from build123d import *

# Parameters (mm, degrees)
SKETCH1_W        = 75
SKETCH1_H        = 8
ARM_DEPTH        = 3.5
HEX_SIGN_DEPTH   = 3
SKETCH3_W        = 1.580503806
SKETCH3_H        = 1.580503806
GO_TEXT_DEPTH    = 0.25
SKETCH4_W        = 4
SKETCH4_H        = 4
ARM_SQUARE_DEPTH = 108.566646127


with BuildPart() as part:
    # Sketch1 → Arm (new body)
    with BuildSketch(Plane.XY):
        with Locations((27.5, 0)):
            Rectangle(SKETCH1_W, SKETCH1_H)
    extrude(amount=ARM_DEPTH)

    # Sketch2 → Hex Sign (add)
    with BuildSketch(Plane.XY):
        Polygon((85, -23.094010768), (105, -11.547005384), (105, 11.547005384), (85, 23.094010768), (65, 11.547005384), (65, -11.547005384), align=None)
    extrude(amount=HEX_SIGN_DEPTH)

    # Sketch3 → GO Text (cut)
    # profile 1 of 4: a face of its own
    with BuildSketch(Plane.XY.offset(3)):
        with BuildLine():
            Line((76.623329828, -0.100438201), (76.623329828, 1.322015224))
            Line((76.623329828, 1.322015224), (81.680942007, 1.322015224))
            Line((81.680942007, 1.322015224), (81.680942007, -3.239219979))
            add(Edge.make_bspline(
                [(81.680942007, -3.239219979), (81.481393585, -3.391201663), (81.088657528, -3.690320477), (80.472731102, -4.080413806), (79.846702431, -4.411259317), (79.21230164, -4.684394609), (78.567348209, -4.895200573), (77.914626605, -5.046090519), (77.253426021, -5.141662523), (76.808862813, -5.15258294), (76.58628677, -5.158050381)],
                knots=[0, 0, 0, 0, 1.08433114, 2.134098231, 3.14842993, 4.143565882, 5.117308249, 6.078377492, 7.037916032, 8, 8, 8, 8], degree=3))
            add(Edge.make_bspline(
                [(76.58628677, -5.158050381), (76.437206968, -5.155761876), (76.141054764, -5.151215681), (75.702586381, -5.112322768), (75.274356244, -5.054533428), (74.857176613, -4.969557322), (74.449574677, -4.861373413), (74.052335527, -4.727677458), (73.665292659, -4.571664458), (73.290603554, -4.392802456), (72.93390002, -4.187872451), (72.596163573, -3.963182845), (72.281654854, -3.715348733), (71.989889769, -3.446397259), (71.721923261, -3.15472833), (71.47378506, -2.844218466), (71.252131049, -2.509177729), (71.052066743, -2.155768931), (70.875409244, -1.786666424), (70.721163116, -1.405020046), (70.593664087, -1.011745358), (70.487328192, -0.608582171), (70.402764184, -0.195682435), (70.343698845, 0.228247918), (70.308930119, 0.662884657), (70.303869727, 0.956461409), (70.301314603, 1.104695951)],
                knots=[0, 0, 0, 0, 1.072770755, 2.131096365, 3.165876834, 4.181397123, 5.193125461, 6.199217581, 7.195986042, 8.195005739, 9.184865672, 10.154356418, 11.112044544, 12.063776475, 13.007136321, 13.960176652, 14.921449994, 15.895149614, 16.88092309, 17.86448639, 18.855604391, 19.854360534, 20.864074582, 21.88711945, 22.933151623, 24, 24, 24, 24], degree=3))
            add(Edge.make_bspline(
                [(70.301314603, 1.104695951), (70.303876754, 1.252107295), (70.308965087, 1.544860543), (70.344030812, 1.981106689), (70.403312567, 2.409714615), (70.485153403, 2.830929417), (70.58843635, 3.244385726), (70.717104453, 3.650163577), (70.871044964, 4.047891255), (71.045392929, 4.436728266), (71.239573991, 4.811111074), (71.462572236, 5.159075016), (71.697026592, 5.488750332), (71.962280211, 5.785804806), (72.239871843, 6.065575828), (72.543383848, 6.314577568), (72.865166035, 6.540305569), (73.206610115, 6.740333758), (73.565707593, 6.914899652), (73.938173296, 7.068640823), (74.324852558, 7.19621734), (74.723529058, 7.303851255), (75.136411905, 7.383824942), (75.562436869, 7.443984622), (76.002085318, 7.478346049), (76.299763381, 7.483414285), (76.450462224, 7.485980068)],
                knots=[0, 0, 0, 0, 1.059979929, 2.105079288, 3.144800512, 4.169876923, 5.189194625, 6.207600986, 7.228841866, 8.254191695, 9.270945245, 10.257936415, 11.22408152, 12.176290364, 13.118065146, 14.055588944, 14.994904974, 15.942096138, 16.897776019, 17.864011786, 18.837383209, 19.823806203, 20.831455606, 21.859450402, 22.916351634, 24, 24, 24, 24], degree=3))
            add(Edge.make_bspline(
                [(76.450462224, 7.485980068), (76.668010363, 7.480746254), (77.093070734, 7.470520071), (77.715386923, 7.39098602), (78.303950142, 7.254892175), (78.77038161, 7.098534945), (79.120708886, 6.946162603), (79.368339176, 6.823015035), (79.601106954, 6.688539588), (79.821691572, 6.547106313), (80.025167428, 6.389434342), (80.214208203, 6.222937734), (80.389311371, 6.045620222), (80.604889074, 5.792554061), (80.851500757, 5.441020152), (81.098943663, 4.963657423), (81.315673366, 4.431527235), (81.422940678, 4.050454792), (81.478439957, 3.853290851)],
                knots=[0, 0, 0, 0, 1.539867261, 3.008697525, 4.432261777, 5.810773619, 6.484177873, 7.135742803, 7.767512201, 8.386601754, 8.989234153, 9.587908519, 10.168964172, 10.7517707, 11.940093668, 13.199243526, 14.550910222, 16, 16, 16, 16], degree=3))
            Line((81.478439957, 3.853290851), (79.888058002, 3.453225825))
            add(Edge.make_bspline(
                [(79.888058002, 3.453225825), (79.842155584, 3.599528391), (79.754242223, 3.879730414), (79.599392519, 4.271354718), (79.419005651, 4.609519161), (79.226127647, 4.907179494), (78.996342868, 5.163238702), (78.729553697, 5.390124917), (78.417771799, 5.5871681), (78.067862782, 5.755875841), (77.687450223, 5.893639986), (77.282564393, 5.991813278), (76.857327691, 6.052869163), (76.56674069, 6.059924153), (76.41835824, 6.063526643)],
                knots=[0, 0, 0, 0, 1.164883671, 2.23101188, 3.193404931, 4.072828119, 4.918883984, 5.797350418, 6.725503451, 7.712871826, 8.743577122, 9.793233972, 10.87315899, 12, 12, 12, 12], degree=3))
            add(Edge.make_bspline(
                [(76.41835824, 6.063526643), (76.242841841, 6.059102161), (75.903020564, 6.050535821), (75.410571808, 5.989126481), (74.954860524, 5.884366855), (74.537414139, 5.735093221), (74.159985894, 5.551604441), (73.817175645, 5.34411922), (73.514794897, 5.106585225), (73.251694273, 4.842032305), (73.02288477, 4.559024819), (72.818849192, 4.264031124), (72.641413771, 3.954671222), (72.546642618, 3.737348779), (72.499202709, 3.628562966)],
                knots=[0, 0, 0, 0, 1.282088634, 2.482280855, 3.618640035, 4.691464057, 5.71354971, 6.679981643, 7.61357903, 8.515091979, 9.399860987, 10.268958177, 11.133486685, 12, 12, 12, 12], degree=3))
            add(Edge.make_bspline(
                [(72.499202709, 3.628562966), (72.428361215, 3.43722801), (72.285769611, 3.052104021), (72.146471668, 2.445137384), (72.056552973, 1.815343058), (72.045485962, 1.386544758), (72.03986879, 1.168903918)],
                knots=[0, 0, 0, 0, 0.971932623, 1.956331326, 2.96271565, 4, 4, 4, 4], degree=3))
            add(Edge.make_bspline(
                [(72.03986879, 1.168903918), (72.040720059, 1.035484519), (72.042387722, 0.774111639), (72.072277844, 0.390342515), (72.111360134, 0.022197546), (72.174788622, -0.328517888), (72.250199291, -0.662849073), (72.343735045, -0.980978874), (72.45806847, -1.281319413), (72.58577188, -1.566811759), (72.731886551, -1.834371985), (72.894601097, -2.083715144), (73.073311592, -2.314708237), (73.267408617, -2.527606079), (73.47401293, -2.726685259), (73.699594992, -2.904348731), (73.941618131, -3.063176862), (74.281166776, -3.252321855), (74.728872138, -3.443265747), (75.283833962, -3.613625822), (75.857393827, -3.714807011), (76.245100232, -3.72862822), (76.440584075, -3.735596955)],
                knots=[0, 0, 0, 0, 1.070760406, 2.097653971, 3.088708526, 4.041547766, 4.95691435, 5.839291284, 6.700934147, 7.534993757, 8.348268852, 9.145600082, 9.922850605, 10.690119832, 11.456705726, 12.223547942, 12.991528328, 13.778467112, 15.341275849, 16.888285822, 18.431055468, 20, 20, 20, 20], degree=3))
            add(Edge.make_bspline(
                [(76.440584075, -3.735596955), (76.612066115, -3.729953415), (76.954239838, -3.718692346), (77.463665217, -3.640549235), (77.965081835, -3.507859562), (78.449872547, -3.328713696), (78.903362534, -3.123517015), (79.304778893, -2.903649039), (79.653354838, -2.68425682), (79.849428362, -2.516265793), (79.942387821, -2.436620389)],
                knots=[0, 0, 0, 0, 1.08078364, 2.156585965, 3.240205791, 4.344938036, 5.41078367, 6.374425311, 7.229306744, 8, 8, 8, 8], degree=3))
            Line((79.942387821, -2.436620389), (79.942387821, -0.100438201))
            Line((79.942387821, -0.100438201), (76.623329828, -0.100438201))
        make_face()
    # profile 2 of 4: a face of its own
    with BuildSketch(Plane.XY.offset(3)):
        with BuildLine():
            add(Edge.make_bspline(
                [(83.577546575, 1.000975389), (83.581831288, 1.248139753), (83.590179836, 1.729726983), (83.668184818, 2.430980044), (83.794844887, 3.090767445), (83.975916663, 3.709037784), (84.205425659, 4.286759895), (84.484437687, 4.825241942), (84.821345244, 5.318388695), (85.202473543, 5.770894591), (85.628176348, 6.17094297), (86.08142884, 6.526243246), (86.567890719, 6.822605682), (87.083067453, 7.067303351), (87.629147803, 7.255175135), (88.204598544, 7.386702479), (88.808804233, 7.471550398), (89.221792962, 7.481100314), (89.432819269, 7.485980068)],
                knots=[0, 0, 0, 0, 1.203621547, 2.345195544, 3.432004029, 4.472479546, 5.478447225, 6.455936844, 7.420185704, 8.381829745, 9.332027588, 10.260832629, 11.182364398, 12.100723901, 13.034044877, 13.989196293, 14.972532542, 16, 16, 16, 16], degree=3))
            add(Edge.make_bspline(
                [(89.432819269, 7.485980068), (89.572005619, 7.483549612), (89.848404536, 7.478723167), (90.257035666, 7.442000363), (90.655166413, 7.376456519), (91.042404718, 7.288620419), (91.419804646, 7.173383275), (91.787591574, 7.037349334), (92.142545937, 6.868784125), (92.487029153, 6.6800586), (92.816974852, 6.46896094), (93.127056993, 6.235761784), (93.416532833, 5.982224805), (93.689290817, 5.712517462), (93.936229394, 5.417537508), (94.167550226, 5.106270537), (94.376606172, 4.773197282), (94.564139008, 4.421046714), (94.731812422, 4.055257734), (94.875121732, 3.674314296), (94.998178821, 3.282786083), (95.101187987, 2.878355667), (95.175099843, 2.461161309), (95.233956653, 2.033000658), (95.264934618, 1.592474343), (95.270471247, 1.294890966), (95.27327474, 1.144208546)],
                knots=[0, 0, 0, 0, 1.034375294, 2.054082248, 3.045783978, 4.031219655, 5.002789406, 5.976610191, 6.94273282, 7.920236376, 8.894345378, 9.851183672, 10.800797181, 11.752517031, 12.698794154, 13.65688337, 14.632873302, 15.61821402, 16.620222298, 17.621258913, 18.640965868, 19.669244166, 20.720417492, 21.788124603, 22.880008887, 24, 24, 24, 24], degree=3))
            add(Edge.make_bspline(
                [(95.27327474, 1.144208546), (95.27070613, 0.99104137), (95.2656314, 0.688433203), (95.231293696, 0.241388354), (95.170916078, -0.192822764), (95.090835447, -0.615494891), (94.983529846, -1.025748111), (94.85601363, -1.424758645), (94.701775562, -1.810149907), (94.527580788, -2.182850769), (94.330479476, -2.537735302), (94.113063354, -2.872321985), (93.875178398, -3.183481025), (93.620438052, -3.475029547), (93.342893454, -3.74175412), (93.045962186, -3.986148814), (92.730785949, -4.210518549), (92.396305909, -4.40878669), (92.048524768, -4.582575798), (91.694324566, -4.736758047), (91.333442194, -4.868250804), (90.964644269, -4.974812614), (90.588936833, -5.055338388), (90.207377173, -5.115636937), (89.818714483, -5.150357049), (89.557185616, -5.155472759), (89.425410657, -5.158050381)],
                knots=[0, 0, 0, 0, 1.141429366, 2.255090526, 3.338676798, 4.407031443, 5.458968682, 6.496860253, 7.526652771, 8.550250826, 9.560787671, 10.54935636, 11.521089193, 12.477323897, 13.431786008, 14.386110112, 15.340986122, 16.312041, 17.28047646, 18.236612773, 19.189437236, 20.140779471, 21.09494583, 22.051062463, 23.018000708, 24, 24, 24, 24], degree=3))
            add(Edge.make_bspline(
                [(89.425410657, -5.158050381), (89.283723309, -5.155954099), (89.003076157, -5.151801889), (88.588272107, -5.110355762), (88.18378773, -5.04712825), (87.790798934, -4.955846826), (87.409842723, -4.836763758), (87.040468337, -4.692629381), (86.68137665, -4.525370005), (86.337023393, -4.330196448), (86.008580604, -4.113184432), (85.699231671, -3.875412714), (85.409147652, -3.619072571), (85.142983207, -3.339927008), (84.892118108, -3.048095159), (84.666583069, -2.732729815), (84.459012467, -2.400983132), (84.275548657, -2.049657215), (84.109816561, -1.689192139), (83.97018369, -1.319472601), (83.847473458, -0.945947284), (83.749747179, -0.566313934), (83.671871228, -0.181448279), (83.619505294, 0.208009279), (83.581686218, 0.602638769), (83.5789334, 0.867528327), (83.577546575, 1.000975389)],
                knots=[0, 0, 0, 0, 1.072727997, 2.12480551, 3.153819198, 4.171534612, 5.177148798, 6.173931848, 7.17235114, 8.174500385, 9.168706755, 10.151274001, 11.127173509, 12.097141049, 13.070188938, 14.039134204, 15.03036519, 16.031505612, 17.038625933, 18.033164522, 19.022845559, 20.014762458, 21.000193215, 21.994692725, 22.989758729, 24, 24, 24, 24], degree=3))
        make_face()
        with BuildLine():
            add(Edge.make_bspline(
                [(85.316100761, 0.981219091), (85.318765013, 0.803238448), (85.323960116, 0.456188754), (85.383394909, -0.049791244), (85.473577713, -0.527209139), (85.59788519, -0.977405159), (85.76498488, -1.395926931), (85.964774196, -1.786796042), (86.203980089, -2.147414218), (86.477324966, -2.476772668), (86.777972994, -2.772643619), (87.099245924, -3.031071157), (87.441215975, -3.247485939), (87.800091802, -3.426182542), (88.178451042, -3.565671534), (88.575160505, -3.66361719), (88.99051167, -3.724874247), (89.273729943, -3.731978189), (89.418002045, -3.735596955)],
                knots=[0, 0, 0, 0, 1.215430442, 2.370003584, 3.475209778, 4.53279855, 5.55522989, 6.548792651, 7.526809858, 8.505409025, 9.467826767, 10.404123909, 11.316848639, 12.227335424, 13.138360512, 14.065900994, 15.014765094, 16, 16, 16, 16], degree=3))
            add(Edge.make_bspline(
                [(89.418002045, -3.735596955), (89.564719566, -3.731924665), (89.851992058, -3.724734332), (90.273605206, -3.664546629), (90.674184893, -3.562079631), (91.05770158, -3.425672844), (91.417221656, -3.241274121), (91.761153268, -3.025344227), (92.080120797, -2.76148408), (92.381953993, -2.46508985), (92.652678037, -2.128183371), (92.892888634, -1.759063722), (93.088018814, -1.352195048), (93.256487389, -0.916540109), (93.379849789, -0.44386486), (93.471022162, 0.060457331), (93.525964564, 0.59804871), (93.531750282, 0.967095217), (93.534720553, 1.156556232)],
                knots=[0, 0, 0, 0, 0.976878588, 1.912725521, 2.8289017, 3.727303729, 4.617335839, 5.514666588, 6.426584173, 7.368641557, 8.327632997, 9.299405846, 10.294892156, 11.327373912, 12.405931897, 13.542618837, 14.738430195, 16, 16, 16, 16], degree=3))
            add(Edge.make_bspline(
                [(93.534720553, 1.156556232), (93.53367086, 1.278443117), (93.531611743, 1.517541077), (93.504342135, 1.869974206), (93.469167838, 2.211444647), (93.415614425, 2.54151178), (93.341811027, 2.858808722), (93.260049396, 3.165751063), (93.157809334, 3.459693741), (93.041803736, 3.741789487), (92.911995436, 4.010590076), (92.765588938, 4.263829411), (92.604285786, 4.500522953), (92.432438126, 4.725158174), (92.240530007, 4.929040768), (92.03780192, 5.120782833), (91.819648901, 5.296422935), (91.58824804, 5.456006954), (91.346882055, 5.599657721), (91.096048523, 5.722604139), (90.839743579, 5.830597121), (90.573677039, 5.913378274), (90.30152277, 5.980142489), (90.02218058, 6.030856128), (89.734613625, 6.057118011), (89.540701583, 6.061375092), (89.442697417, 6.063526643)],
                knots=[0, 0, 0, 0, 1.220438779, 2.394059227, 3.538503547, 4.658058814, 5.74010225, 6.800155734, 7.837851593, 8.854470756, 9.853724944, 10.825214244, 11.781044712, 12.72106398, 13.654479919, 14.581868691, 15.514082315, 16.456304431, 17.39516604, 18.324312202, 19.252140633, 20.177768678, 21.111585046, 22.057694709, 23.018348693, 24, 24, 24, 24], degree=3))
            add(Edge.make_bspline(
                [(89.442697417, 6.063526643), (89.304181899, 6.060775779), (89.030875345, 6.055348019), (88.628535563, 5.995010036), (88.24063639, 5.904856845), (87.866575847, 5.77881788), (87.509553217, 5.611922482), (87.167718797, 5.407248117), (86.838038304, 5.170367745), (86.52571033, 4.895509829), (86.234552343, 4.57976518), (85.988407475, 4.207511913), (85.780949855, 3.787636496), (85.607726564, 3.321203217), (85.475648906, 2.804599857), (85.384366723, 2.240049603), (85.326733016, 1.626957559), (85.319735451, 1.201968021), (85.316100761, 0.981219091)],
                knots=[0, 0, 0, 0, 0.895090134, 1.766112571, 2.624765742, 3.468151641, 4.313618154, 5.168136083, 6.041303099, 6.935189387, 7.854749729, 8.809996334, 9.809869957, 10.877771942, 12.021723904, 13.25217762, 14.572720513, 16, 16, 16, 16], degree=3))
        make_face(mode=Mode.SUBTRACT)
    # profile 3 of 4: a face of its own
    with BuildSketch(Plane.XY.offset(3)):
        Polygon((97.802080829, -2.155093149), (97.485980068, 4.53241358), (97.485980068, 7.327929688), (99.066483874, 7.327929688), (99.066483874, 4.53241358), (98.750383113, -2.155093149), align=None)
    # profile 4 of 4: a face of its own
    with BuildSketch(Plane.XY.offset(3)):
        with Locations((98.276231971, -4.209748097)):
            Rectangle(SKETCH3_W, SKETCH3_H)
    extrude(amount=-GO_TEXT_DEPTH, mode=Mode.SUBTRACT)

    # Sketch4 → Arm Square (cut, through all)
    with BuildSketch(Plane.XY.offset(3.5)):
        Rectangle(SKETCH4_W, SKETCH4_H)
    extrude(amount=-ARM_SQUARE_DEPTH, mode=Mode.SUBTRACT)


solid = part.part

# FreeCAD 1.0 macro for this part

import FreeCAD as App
import Part
import Sketcher
Q = App.Units.Quantity

doc = App.newDocument("Part")
body = doc.addObject("PartDesign::Body", "Body")

# Sketch on XY plane
sketch1 = body.newObject("Sketcher::SketchObject", "Sketch")
sketch1.AttachmentSupport = (doc.getObject("XY_Plane"), [""])
sketch1.MapMode = "FlatFace"
sketch1.addGeometry([
    Part.LineSegment(App.Vector(-10, 4, 0), App.Vector(-10, -4, 0)),
    Part.LineSegment(App.Vector(-10, -4, 0), App.Vector(65, -4, 0)),
    Part.LineSegment(App.Vector(65, -4, 0), App.Vector(65, 4, 0)),
    Part.LineSegment(App.Vector(65, 4, 0), App.Vector(-10, 4, 0)),
], False)
sketch1.addConstraint([
    Sketcher.Constraint("Coincident", 0, 2, 1, 1),
    Sketcher.Constraint("Coincident", 1, 2, 2, 1),
    Sketcher.Constraint("Coincident", 2, 2, 3, 1),
    Sketcher.Constraint("Coincident", 3, 2, 0, 1),
    Sketcher.Constraint("Vertical", 0),
    Sketcher.Constraint("Horizontal", 1),
    Sketcher.Constraint("Vertical", 2),
    Sketcher.Constraint("Horizontal", 3),
    Sketcher.Constraint("DistanceX", 1, 1, 1, 2, 75.0),
    Sketcher.Constraint("DistanceY", 0, 2, 0, 1, 8.0),
    Sketcher.Constraint("DistanceX", 0, 2, -1, 1, 10.0),
    Sketcher.Constraint("DistanceY", 0, 2, -1, 1, 4.0),
])
pad1 = body.newObject("PartDesign::Pad", "Pad")
pad1.Profile = sketch1
pad1.Length = 3.5

# Sketch on XY plane
sketch2 = body.newObject("Sketcher::SketchObject", "Sketch001")
sketch2.AttachmentSupport = (doc.getObject("XY_Plane"), [""])
sketch2.MapMode = "FlatFace"
sketch2.addGeometry([
    Part.LineSegment(App.Vector(85, -23.094011, 0), App.Vector(105, -11.547005, 0)),  # 0
    Part.LineSegment(App.Vector(105, -11.547005, 0), App.Vector(105, 11.547005, 0)),  # 1
    Part.LineSegment(App.Vector(105, 11.547005, 0), App.Vector(85, 23.094011, 0)),  # 2
    Part.LineSegment(App.Vector(85, 23.094011, 0), App.Vector(65, 11.547005, 0)),  # 3
    Part.LineSegment(App.Vector(65, 11.547005, 0), App.Vector(65, -11.547005, 0)),  # 4
    Part.LineSegment(App.Vector(65, -11.547005, 0), App.Vector(85, -23.094011, 0)),  # 5
], False)
sketch2.addConstraint([
    Sketcher.Constraint("Coincident", 0, 2, 1, 1),
    Sketcher.Constraint("Coincident", 1, 2, 2, 1),
    Sketcher.Constraint("Coincident", 2, 2, 3, 1),
    Sketcher.Constraint("Coincident", 3, 2, 4, 1),
    Sketcher.Constraint("Coincident", 4, 2, 5, 1),
    Sketcher.Constraint("Coincident", 5, 2, 0, 1),
    Sketcher.Constraint("Vertical", 1),
    Sketcher.Constraint("Vertical", 4),
    Sketcher.Constraint("Symmetric", 2, 2, 5, 2, -1),
    Sketcher.Constraint("Parallel", 0, 3),
    Sketcher.Constraint("Parallel", 2, 5),
    Sketcher.Constraint("Horizontal", 1, 2, 3, 2),
    Sketcher.Constraint("Horizontal", 0, 2, 4, 2),
    Sketcher.Constraint("Angle", 0, Q("30 deg")),
    Sketcher.Constraint("DistanceX", -1, 1, 0, 2, 105.0),
    Sketcher.Constraint("DistanceX", -1, 1, 2, 2, 85.0),
    Sketcher.Constraint("DistanceY", 1, 1, 1, 2, 23.094011),
])
pad2 = body.newObject("PartDesign::Pad", "Pad001")
pad2.Profile = sketch2
pad2.Length = 3

# Sketch on XY plane
sketch3 = body.newObject("Sketcher::SketchObject", "Sketch002")
sketch3.AttachmentSupport = (doc.getObject("XY_Plane"), [""])
sketch3.MapMode = "FlatFace"
sketch3.AttachmentOffset = App.Placement(App.Vector(0, 0, 3), App.Rotation())
sketch3.addGeometry([
    Part.LineSegment(App.Vector(76.62333, 1.322015, 0), App.Vector(76.62333, -0.100438, 0)),  # 0
    Part.LineSegment(App.Vector(76.62333, -0.100438, 0), App.Vector(79.942388, -0.100438, 0)),  # 1
    Part.LineSegment(App.Vector(79.942388, -0.100438, 0), App.Vector(79.942388, -2.43662, 0)),  # 2
    Part.BSplineCurve([App.Vector(76.440584, -3.735597, 0), App.Vector(76.612066, -3.729953, 0), App.Vector(76.95424, -3.718692, 0), App.Vector(77.463665, -3.640549, 0), App.Vector(77.965082, -3.50786, 0), App.Vector(78.449873, -3.328714, 0), App.Vector(78.903363, -3.123517, 0), App.Vector(79.304779, -2.903649, 0), App.Vector(79.653355, -2.684257, 0), App.Vector(79.849428, -2.516266, 0), App.Vector(79.942388, -2.43662, 0)], [4, 1, 1, 1, 1, 1, 1, 1, 4], [0, 1.08078364, 2.156585965, 3.240205791, 4.344938036, 5.41078367, 6.374425311, 7.229306744, 8], False, 3, [1, 1, 1, 1, 1, 1, 1, 1, 1, 1, 1], False),  # 3
    Part.BSplineCurve([App.Vector(72.039869, 1.168904, 0), App.Vector(72.04072, 1.035485, 0), App.Vector(72.042388, 0.774112, 0), App.Vector(72.072278, 0.390343, 0), App.Vector(72.11136, 0.022198, 0), App.Vector(72.174789, -0.328518, 0), App.Vector(72.250199, -0.662849, 0), App.Vector(72.343735, -0.980979, 0), App.Vector(72.458068, -1.281319, 0), App.Vector(72.585772, -1.566812, 0), App.Vector(72.731887, -1.834372, 0), App.Vector(72.894601, -2.083715, 0), App.Vector(73.073312, -2.314708, 0), App.Vector(73.267409, -2.527606, 0), App.Vector(73.474013, -2.726685, 0), App.Vector(73.699595, -2.904349, 0), App.Vector(73.941618, -3.063177, 0), App.Vector(74.281167, -3.252322, 0), App.Vector(74.728872, -3.443266, 0), App.Vector(75.283834, -3.613626, 0), App.Vector(75.857394, -3.714807, 0), App.Vector(76.2451, -3.728628, 0), App.Vector(76.440584, -3.735597, 0)], [4, 1, 1, 1, 1, 1, 1, 1, 1, 1, 1, 1, 1, 1, 1, 1, 1, 1, 1, 1, 4], [0, 1.070760406, 2.097653971, 3.088708526, 4.041547766, 4.95691435, 5.839291284, 6.700934147, 7.534993757, 8.348268852, 9.145600082, 9.922850605, 10.690119832, 11.456705726, 12.223547942, 12.991528328, 13.778467112, 15.341275849, 16.888285822, 18.431055468, 20], False, 3, [1, 1, 1, 1, 1, 1, 1, 1, 1, 1, 1, 1, 1, 1, 1, 1, 1, 1, 1, 1, 1, 1, 1], False),  # 4
    Part.BSplineCurve([App.Vector(72.499203, 3.628563, 0), App.Vector(72.428361, 3.437228, 0), App.Vector(72.28577, 3.052104, 0), App.Vector(72.146472, 2.445137, 0), App.Vector(72.056553, 1.815343, 0), App.Vector(72.045486, 1.386545, 0), App.Vector(72.039869, 1.168904, 0)], [4, 1, 1, 1, 4], [0, 0.971932623, 1.956331326, 2.96271565, 4], False, 3, [1, 1, 1, 1, 1, 1, 1], False),  # 5
    Part.BSplineCurve([App.Vector(76.418358, 6.063527, 0), App.Vector(76.242842, 6.059102, 0), App.Vector(75.903021, 6.050536, 0), App.Vector(75.410572, 5.989126, 0), App.Vector(74.954861, 5.884367, 0), App.Vector(74.537414, 5.735093, 0), App.Vector(74.159986, 5.551604, 0), App.Vector(73.817176, 5.344119, 0), App.Vector(73.514795, 5.106585, 0), App.Vector(73.251694, 4.842032, 0), App.Vector(73.022885, 4.559025, 0), App.Vector(72.818849, 4.264031, 0), App.Vector(72.641414, 3.954671, 0), App.Vector(72.546643, 3.737349, 0), App.Vector(72.499203, 3.628563, 0)], [4, 1, 1, 1, 1, 1, 1, 1, 1, 1, 1, 1, 4], [0, 1.282088634, 2.482280855, 3.618640035, 4.691464057, 5.71354971, 6.679981643, 7.61357903, 8.515091979, 9.399860987, 10.268958177, 11.133486685, 12], False, 3, [1, 1, 1, 1, 1, 1, 1, 1, 1, 1, 1, 1, 1, 1, 1], False),  # 6
    Part.BSplineCurve([App.Vector(79.888058, 3.453226, 0), App.Vector(79.842156, 3.599528, 0), App.Vector(79.754242, 3.87973, 0), App.Vector(79.599393, 4.271355, 0), App.Vector(79.419006, 4.609519, 0), App.Vector(79.226128, 4.907179, 0), App.Vector(78.996343, 5.163239, 0), App.Vector(78.729554, 5.390125, 0), App.Vector(78.417772, 5.587168, 0), App.Vector(78.067863, 5.755876, 0), App.Vector(77.68745, 5.89364, 0), App.Vector(77.282564, 5.991813, 0), App.Vector(76.857328, 6.052869, 0), App.Vector(76.566741, 6.059924, 0), App.Vector(76.418358, 6.063527, 0)], [4, 1, 1, 1, 1, 1, 1, 1, 1, 1, 1, 1, 4], [0, 1.164883671, 2.23101188, 3.193404931, 4.072828119, 4.918883984, 5.797350418, 6.725503451, 7.712871826, 8.743577122, 9.793233972, 10.87315899, 12], False, 3, [1, 1, 1, 1, 1, 1, 1, 1, 1, 1, 1, 1, 1, 1, 1], False),  # 7
    Part.LineSegment(App.Vector(79.888058, 3.453226, 0), App.Vector(81.47844, 3.853291, 0)),  # 8
    Part.BSplineCurve([App.Vector(76.450462, 7.48598, 0), App.Vector(76.66801, 7.480746, 0), App.Vector(77.093071, 7.47052, 0), App.Vector(77.715387, 7.390986, 0), App.Vector(78.30395, 7.254892, 0), App.Vector(78.770382, 7.098535, 0), App.Vector(79.120709, 6.946163, 0), App.Vector(79.368339, 6.823015, 0), App.Vector(79.601107, 6.68854, 0), App.Vector(79.821692, 6.547106, 0), App.Vector(80.025167, 6.389434, 0), App.Vector(80.214208, 6.222938, 0), App.Vector(80.389311, 6.04562, 0), App.Vector(80.604889, 5.792554, 0), App.Vector(80.851501, 5.44102, 0), App.Vector(81.098944, 4.963657, 0), App.Vector(81.315673, 4.431527, 0), App.Vector(81.422941, 4.050455, 0), App.Vector(81.47844, 3.853291, 0)], [4, 1, 1, 1, 1, 1, 1, 1, 1, 1, 1, 1, 1, 1, 1, 1, 4], [0, 1.539867261, 3.008697525, 4.432261777, 5.810773619, 6.484177873, 7.135742803, 7.767512201, 8.386601754, 8.989234153, 9.587908519, 10.168964172, 10.7517707, 11.940093668, 13.199243526, 14.550910222, 16], False, 3, [1, 1, 1, 1, 1, 1, 1, 1, 1, 1, 1, 1, 1, 1, 1, 1, 1, 1, 1], False),  # 9
    Part.BSplineCurve([App.Vector(70.301315, 1.104696, 0), App.Vector(70.303877, 1.252107, 0), App.Vector(70.308965, 1.544861, 0), App.Vector(70.344031, 1.981107, 0), App.Vector(70.403313, 2.409715, 0), App.Vector(70.485153, 2.830929, 0), App.Vector(70.588436, 3.244386, 0), App.Vector(70.717104, 3.650164, 0), App.Vector(70.871045, 4.047891, 0), App.Vector(71.045393, 4.436728, 0), App.Vector(71.239574, 4.811111, 0), App.Vector(71.462572, 5.159075, 0), App.Vector(71.697027, 5.48875, 0), App.Vector(71.96228, 5.785805, 0), App.Vector(72.239872, 6.065576, 0), App.Vector(72.543384, 6.314578, 0), App.Vector(72.865166, 6.540306, 0), App.Vector(73.20661, 6.740334, 0), App.Vector(73.565708, 6.9149, 0), App.Vector(73.938173, 7.068641, 0), App.Vector(74.324853, 7.196217, 0), App.Vector(74.723529, 7.303851, 0), App.Vector(75.136412, 7.383825, 0), App.Vector(75.562437, 7.443985, 0), App.Vector(76.002085, 7.478346, 0), App.Vector(76.299763, 7.483414, 0), App.Vector(76.450462, 7.48598, 0)], [4, 1, 1, 1, 1, 1, 1, 1, 1, 1, 1, 1, 1, 1, 1, 1, 1, 1, 1, 1, 1, 1, 1, 1, 4], [0, 1.059979929, 2.105079288, 3.144800512, 4.169876923, 5.189194625, 6.207600986, 7.228841866, 8.254191695, 9.270945245, 10.257936415, 11.22408152, 12.176290364, 13.118065146, 14.055588944, 14.994904974, 15.942096138, 16.897776019, 17.864011786, 18.837383209, 19.823806203, 20.831455606, 21.859450402, 22.916351634, 24], False, 3, [1, 1, 1, 1, 1, 1, 1, 1, 1, 1, 1, 1, 1, 1, 1, 1, 1, 1, 1, 1, 1, 1, 1, 1, 1, 1, 1], False),  # 10
    Part.BSplineCurve([App.Vector(76.586287, -5.15805, 0), App.Vector(76.437207, -5.155762, 0), App.Vector(76.141055, -5.151216, 0), App.Vector(75.702586, -5.112323, 0), App.Vector(75.274356, -5.054533, 0), App.Vector(74.857177, -4.969557, 0), App.Vector(74.449575, -4.861373, 0), App.Vector(74.052336, -4.727677, 0), App.Vector(73.665293, -4.571664, 0), App.Vector(73.290604, -4.392802, 0), App.Vector(72.9339, -4.187872, 0), App.Vector(72.596164, -3.963183, 0), App.Vector(72.281655, -3.715349, 0), App.Vector(71.98989, -3.446397, 0), App.Vector(71.721923, -3.154728, 0), App.Vector(71.473785, -2.844218, 0), App.Vector(71.252131, -2.509178, 0), App.Vector(71.052067, -2.155769, 0), App.Vector(70.875409, -1.786666, 0), App.Vector(70.721163, -1.40502, 0), App.Vector(70.593664, -1.011745, 0), App.Vector(70.487328, -0.608582, 0), App.Vector(70.402764, -0.195682, 0), App.Vector(70.343699, 0.228248, 0), App.Vector(70.30893, 0.662885, 0), App.Vector(70.30387, 0.956461, 0), App.Vector(70.301315, 1.104696, 0)], [4, 1, 1, 1, 1, 1, 1, 1, 1, 1, 1, 1, 1, 1, 1, 1, 1, 1, 1, 1, 1, 1, 1, 1, 4], [0, 1.072770755, 2.131096365, 3.165876834, 4.181397123, 5.193125461, 6.199217581, 7.195986042, 8.195005739, 9.184865672, 10.154356418, 11.112044544, 12.063776475, 13.007136321, 13.960176652, 14.921449994, 15.895149614, 16.88092309, 17.86448639, 18.855604391, 19.854360534, 20.864074582, 21.88711945, 22.933151623, 24], False, 3, [1, 1, 1, 1, 1, 1, 1, 1, 1, 1, 1, 1, 1, 1, 1, 1, 1, 1, 1, 1, 1, 1, 1, 1, 1, 1, 1], False),  # 11
    Part.BSplineCurve([App.Vector(81.680942, -3.23922, 0), App.Vector(81.481394, -3.391202, 0), App.Vector(81.088658, -3.69032, 0), App.Vector(80.472731, -4.080414, 0), App.Vector(79.846702, -4.411259, 0), App.Vector(79.212302, -4.684395, 0), App.Vector(78.567348, -4.895201, 0), App.Vector(77.914627, -5.046091, 0), App.Vector(77.253426, -5.141663, 0), App.Vector(76.808863, -5.152583, 0), App.Vector(76.586287, -5.15805, 0)], [4, 1, 1, 1, 1, 1, 1, 1, 4], [0, 1.08433114, 2.134098231, 3.14842993, 4.143565882, 5.117308249, 6.078377492, 7.037916032, 8], False, 3, [1, 1, 1, 1, 1, 1, 1, 1, 1, 1, 1], False),  # 12
    Part.LineSegment(App.Vector(81.680942, -3.23922, 0), App.Vector(81.680942, 1.322015, 0)),  # 13
    Part.LineSegment(App.Vector(81.680942, 1.322015, 0), App.Vector(76.62333, 1.322015, 0)),  # 14
    Part.BSplineCurve([App.Vector(83.577547, 1.000975, 0), App.Vector(83.581831, 1.24814, 0), App.Vector(83.59018, 1.729727, 0), App.Vector(83.668185, 2.43098, 0), App.Vector(83.794845, 3.090767, 0), App.Vector(83.975917, 3.709038, 0), App.Vector(84.205426, 4.28676, 0), App.Vector(84.484438, 4.825242, 0), App.Vector(84.821345, 5.318389, 0), App.Vector(85.202474, 5.770895, 0), App.Vector(85.628176, 6.170943, 0), App.Vector(86.081429, 6.526243, 0), App.Vector(86.567891, 6.822606, 0), App.Vector(87.083067, 7.067303, 0), App.Vector(87.629148, 7.255175, 0), App.Vector(88.204599, 7.386702, 0), App.Vector(88.808804, 7.47155, 0), App.Vector(89.221793, 7.4811, 0), App.Vector(89.432819, 7.48598, 0)], [4, 1, 1, 1, 1, 1, 1, 1, 1, 1, 1, 1, 1, 1, 1, 1, 4], [0, 1.203621547, 2.345195544, 3.432004029, 4.472479546, 5.478447225, 6.455936844, 7.420185704, 8.381829745, 9.332027588, 10.260832629, 11.182364398, 12.100723901, 13.034044877, 13.989196293, 14.972532542, 16], False, 3, [1, 1, 1, 1, 1, 1, 1, 1, 1, 1, 1, 1, 1, 1, 1, 1, 1, 1, 1], False),  # 15
    Part.BSplineCurve([App.Vector(89.425411, -5.15805, 0), App.Vector(89.283723, -5.155954, 0), App.Vector(89.003076, -5.151802, 0), App.Vector(88.588272, -5.110356, 0), App.Vector(88.183788, -5.047128, 0), App.Vector(87.790799, -4.955847, 0), App.Vector(87.409843, -4.836764, 0), App.Vector(87.040468, -4.692629, 0), App.Vector(86.681377, -4.52537, 0), App.Vector(86.337023, -4.330196, 0), App.Vector(86.008581, -4.113184, 0), App.Vector(85.699232, -3.875413, 0), App.Vector(85.409148, -3.619073, 0), App.Vector(85.142983, -3.339927, 0), App.Vector(84.892118, -3.048095, 0), App.Vector(84.666583, -2.73273, 0), App.Vector(84.459012, -2.400983, 0), App.Vector(84.275549, -2.049657, 0), App.Vector(84.109817, -1.689192, 0), App.Vector(83.970184, -1.319473, 0), App.Vector(83.847473, -0.945947, 0), App.Vector(83.749747, -0.566314, 0), App.Vector(83.671871, -0.181448, 0), App.Vector(83.619505, 0.208009, 0), App.Vector(83.581686, 0.602639, 0), App.Vector(83.578933, 0.867528, 0), App.Vector(83.577547, 1.000975, 0)], [4, 1, 1, 1, 1, 1, 1, 1, 1, 1, 1, 1, 1, 1, 1, 1, 1, 1, 1, 1, 1, 1, 1, 1, 4], [0, 1.072727997, 2.12480551, 3.153819198, 4.171534612, 5.177148798, 6.173931848, 7.17235114, 8.174500385, 9.168706755, 10.151274001, 11.127173509, 12.097141049, 13.070188938, 14.039134204, 15.03036519, 16.031505612, 17.038625933, 18.033164522, 19.022845559, 20.014762458, 21.000193215, 21.994692725, 22.989758729, 24], False, 3, [1, 1, 1, 1, 1, 1, 1, 1, 1, 1, 1, 1, 1, 1, 1, 1, 1, 1, 1, 1, 1, 1, 1, 1, 1, 1, 1], False),  # 16
    Part.BSplineCurve([App.Vector(95.273275, 1.144209, 0), App.Vector(95.270706, 0.991041, 0), App.Vector(95.265631, 0.688433, 0), App.Vector(95.231294, 0.241388, 0), App.Vector(95.170916, -0.192823, 0), App.Vector(95.090835, -0.615495, 0), App.Vector(94.98353, -1.025748, 0), App.Vector(94.856014, -1.424759, 0), App.Vector(94.701776, -1.81015, 0), App.Vector(94.527581, -2.182851, 0), App.Vector(94.330479, -2.537735, 0), App.Vector(94.113063, -2.872322, 0), App.Vector(93.875178, -3.183481, 0), App.Vector(93.620438, -3.47503, 0), App.Vector(93.342893, -3.741754, 0), App.Vector(93.045962, -3.986149, 0), App.Vector(92.730786, -4.210519, 0), App.Vector(92.396306, -4.408787, 0), App.Vector(92.048525, -4.582576, 0), App.Vector(91.694325, -4.736758, 0), App.Vector(91.333442, -4.868251, 0), App.Vector(90.964644, -4.974813, 0), App.Vector(90.588937, -5.055338, 0), App.Vector(90.207377, -5.115637, 0), App.Vector(89.818714, -5.150357, 0), App.Vector(89.557186, -5.155473, 0), App.Vector(89.425411, -5.15805, 0)], [4, 1, 1, 1, 1, 1, 1, 1, 1, 1, 1, 1, 1, 1, 1, 1, 1, 1, 1, 1, 1, 1, 1, 1, 4], [0, 1.141429366, 2.255090526, 3.338676798, 4.407031443, 5.458968682, 6.496860253, 7.526652771, 8.550250826, 9.560787671, 10.54935636, 11.521089193, 12.477323897, 13.431786008, 14.386110112, 15.340986122, 16.312041, 17.28047646, 18.236612773, 19.189437236, 20.140779471, 21.09494583, 22.051062463, 23.018000708, 24], False, 3, [1, 1, 1, 1, 1, 1, 1, 1, 1, 1, 1, 1, 1, 1, 1, 1, 1, 1, 1, 1, 1, 1, 1, 1, 1, 1, 1], False),  # 17
    Part.BSplineCurve([App.Vector(89.432819, 7.48598, 0), App.Vector(89.572006, 7.48355, 0), App.Vector(89.848405, 7.478723, 0), App.Vector(90.257036, 7.442, 0), App.Vector(90.655166, 7.376457, 0), App.Vector(91.042405, 7.28862, 0), App.Vector(91.419805, 7.173383, 0), App.Vector(91.787592, 7.037349, 0), App.Vector(92.142546, 6.868784, 0), App.Vector(92.487029, 6.680059, 0), App.Vector(92.816975, 6.468961, 0), App.Vector(93.127057, 6.235762, 0), App.Vector(93.416533, 5.982225, 0), App.Vector(93.689291, 5.712517, 0), App.Vector(93.936229, 5.417538, 0), App.Vector(94.16755, 5.106271, 0), App.Vector(94.376606, 4.773197, 0), App.Vector(94.564139, 4.421047, 0), App.Vector(94.731812, 4.055258, 0), App.Vector(94.875122, 3.674314, 0), App.Vector(94.998179, 3.282786, 0), App.Vector(95.101188, 2.878356, 0), App.Vector(95.1751, 2.461161, 0), App.Vector(95.233957, 2.033001, 0), App.Vector(95.264935, 1.592474, 0), App.Vector(95.270471, 1.294891, 0), App.Vector(95.273275, 1.144209, 0)], [4, 1, 1, 1, 1, 1, 1, 1, 1, 1, 1, 1, 1, 1, 1, 1, 1, 1, 1, 1, 1, 1, 1, 1, 4], [0, 1.034375294, 2.054082248, 3.045783978, 4.031219655, 5.002789406, 5.976610191, 6.94273282, 7.920236376, 8.894345378, 9.851183672, 10.800797181, 11.752517031, 12.698794154, 13.65688337, 14.632873302, 15.61821402, 16.620222298, 17.621258913, 18.640965868, 19.669244166, 20.720417492, 21.788124603, 22.880008887, 24], False, 3, [1, 1, 1, 1, 1, 1, 1, 1, 1, 1, 1, 1, 1, 1, 1, 1, 1, 1, 1, 1, 1, 1, 1, 1, 1, 1, 1], False),  # 18
    Part.BSplineCurve([App.Vector(89.442697, 6.063527, 0), App.Vector(89.304182, 6.060776, 0), App.Vector(89.030875, 6.055348, 0), App.Vector(88.628536, 5.99501, 0), App.Vector(88.240636, 5.904857, 0), App.Vector(87.866576, 5.778818, 0), App.Vector(87.509553, 5.611922, 0), App.Vector(87.167719, 5.407248, 0), App.Vector(86.838038, 5.170368, 0), App.Vector(86.52571, 4.89551, 0), App.Vector(86.234552, 4.579765, 0), App.Vector(85.988407, 4.207512, 0), App.Vector(85.78095, 3.787636, 0), App.Vector(85.607727, 3.321203, 0), App.Vector(85.475649, 2.8046, 0), App.Vector(85.384367, 2.24005, 0), App.Vector(85.326733, 1.626958, 0), App.Vector(85.319735, 1.201968, 0), App.Vector(85.316101, 0.981219, 0)], [4, 1, 1, 1, 1, 1, 1, 1, 1, 1, 1, 1, 1, 1, 1, 1, 4], [0, 0.895090134, 1.766112571, 2.624765742, 3.468151641, 4.313618154, 5.168136083, 6.041303099, 6.935189387, 7.854749729, 8.809996334, 9.809869957, 10.877771942, 12.021723904, 13.25217762, 14.572720513, 16], False, 3, [1, 1, 1, 1, 1, 1, 1, 1, 1, 1, 1, 1, 1, 1, 1, 1, 1, 1, 1], False),  # 19
    Part.BSplineCurve([App.Vector(93.534721, 1.156556, 0), App.Vector(93.533671, 1.278443, 0), App.Vector(93.531612, 1.517541, 0), App.Vector(93.504342, 1.869974, 0), App.Vector(93.469168, 2.211445, 0), App.Vector(93.415614, 2.541512, 0), App.Vector(93.341811, 2.858809, 0), App.Vector(93.260049, 3.165751, 0), App.Vector(93.157809, 3.459694, 0), App.Vector(93.041804, 3.741789, 0), App.Vector(92.911995, 4.01059, 0), App.Vector(92.765589, 4.263829, 0), App.Vector(92.604286, 4.500523, 0), App.Vector(92.432438, 4.725158, 0), App.Vector(92.24053, 4.929041, 0), App.Vector(92.037802, 5.120783, 0), App.Vector(91.819649, 5.296423, 0), App.Vector(91.588248, 5.456007, 0), App.Vector(91.346882, 5.599658, 0), App.Vector(91.096049, 5.722604, 0), App.Vector(90.839744, 5.830597, 0), App.Vector(90.573677, 5.913378, 0), App.Vector(90.301523, 5.980142, 0), App.Vector(90.022181, 6.030856, 0), App.Vector(89.734614, 6.057118, 0), App.Vector(89.540702, 6.061375, 0), App.Vector(89.442697, 6.063527, 0)], [4, 1, 1, 1, 1, 1, 1, 1, 1, 1, 1, 1, 1, 1, 1, 1, 1, 1, 1, 1, 1, 1, 1, 1, 4], [0, 1.220438779, 2.394059227, 3.538503547, 4.658058814, 5.74010225, 6.800155734, 7.837851593, 8.854470756, 9.853724944, 10.825214244, 11.781044712, 12.72106398, 13.654479919, 14.581868691, 15.514082315, 16.456304431, 17.39516604, 18.324312202, 19.252140633, 20.177768678, 21.111585046, 22.057694709, 23.018348693, 24], False, 3, [1, 1, 1, 1, 1, 1, 1, 1, 1, 1, 1, 1, 1, 1, 1, 1, 1, 1, 1, 1, 1, 1, 1, 1, 1, 1, 1], False),  # 20
    Part.BSplineCurve([App.Vector(89.418002, -3.735597, 0), App.Vector(89.56472, -3.731925, 0), App.Vector(89.851992, -3.724734, 0), App.Vector(90.273605, -3.664547, 0), App.Vector(90.674185, -3.56208, 0), App.Vector(91.057702, -3.425673, 0), App.Vector(91.417222, -3.241274, 0), App.Vector(91.761153, -3.025344, 0), App.Vector(92.080121, -2.761484, 0), App.Vector(92.381954, -2.46509, 0), App.Vector(92.652678, -2.128183, 0), App.Vector(92.892889, -1.759064, 0), App.Vector(93.088019, -1.352195, 0), App.Vector(93.256487, -0.91654, 0), App.Vector(93.37985, -0.443865, 0), App.Vector(93.471022, 0.060457, 0), App.Vector(93.525965, 0.598049, 0), App.Vector(93.53175, 0.967095, 0), App.Vector(93.534721, 1.156556, 0)], [4, 1, 1, 1, 1, 1, 1, 1, 1, 1, 1, 1, 1, 1, 1, 1, 4], [0, 0.976878588, 1.912725521, 2.8289017, 3.727303729, 4.617335839, 5.514666588, 6.426584173, 7.368641557, 8.327632997, 9.299405846, 10.294892156, 11.327373912, 12.405931897, 13.542618837, 14.738430195, 16], False, 3, [1, 1, 1, 1, 1, 1, 1, 1, 1, 1, 1, 1, 1, 1, 1, 1, 1, 1, 1], False),  # 21
    Part.BSplineCurve([App.Vector(85.316101, 0.981219, 0), App.Vector(85.318765, 0.803238, 0), App.Vector(85.32396, 0.456189, 0), App.Vector(85.383395, -0.049791, 0), App.Vector(85.473578, -0.527209, 0), App.Vector(85.597885, -0.977405, 0), App.Vector(85.764985, -1.395927, 0), App.Vector(85.964774, -1.786796, 0), App.Vector(86.20398, -2.147414, 0), App.Vector(86.477325, -2.476773, 0), App.Vector(86.777973, -2.772644, 0), App.Vector(87.099246, -3.031071, 0), App.Vector(87.441216, -3.247486, 0), App.Vector(87.800092, -3.426183, 0), App.Vector(88.178451, -3.565672, 0), App.Vector(88.575161, -3.663617, 0), App.Vector(88.990512, -3.724874, 0), App.Vector(89.27373, -3.731978, 0), App.Vector(89.418002, -3.735597, 0)], [4, 1, 1, 1, 1, 1, 1, 1, 1, 1, 1, 1, 1, 1, 1, 1, 4], [0, 1.215430442, 2.370003584, 3.475209778, 4.53279855, 5.55522989, 6.548792651, 7.526809858, 8.505409025, 9.467826767, 10.404123909, 11.316848639, 12.227335424, 13.138360512, 14.065900994, 15.014765094, 16], False, 3, [1, 1, 1, 1, 1, 1, 1, 1, 1, 1, 1, 1, 1, 1, 1, 1, 1, 1, 1], False),  # 22
    Part.LineSegment(App.Vector(97.48598, 4.532414, 0), App.Vector(97.802081, -2.155093, 0)),  # 23
    Part.LineSegment(App.Vector(97.802081, -2.155093, 0), App.Vector(98.750383, -2.155093, 0)),  # 24
    Part.LineSegment(App.Vector(98.750383, -2.155093, 0), App.Vector(99.066484, 4.532414, 0)),  # 25
    Part.LineSegment(App.Vector(99.066484, 4.532414, 0), App.Vector(99.066484, 7.32793, 0)),  # 26
    Part.LineSegment(App.Vector(99.066484, 7.32793, 0), App.Vector(97.48598, 7.32793, 0)),  # 27
    Part.LineSegment(App.Vector(97.48598, 7.32793, 0), App.Vector(97.48598, 4.532414, 0)),  # 28
    Part.LineSegment(App.Vector(97.48598, -3.419496, 0), App.Vector(97.48598, -5, 0)),  # 29
    Part.LineSegment(App.Vector(97.48598, -5, 0), App.Vector(99.066484, -5, 0)),  # 30
    Part.LineSegment(App.Vector(99.066484, -5, 0), App.Vector(99.066484, -3.419496, 0)),  # 31
    Part.LineSegment(App.Vector(99.066484, -3.419496, 0), App.Vector(97.48598, -3.419496, 0)),  # 32
], False)
sketch3.addConstraint([
    Sketcher.Constraint("Block", 3),
    Sketcher.Constraint("Block", 4),
    Sketcher.Constraint("Block", 5),
    Sketcher.Constraint("Block", 6),
    Sketcher.Constraint("Block", 7),
    Sketcher.Constraint("Block", 9),
    Sketcher.Constraint("Block", 10),
    Sketcher.Constraint("Block", 11),
    Sketcher.Constraint("Block", 12),
    Sketcher.Constraint("Block", 15),
    Sketcher.Constraint("Block", 16),
    Sketcher.Constraint("Block", 17),
    Sketcher.Constraint("Block", 18),
    Sketcher.Constraint("Block", 19),
    Sketcher.Constraint("Block", 20),
    Sketcher.Constraint("Block", 21),
    Sketcher.Constraint("Block", 22),
    Sketcher.Constraint("Coincident", 0, 2, 1, 1),
    Sketcher.Constraint("Coincident", 1, 2, 2, 1),
    Sketcher.Constraint("Coincident", 2, 2, 3, 2),
    Sketcher.Constraint("Coincident", 7, 1, 8, 1),
    Sketcher.Constraint("Coincident", 8, 2, 9, 2),
    Sketcher.Constraint("Coincident", 12, 1, 13, 1),
    Sketcher.Constraint("Coincident", 13, 2, 14, 1),
    Sketcher.Constraint("Coincident", 14, 2, 0, 1),
    Sketcher.Constraint("Coincident", 23, 2, 24, 1),
    Sketcher.Constraint("Coincident", 24, 2, 25, 1),
    Sketcher.Constraint("Coincident", 25, 2, 26, 1),
    Sketcher.Constraint("Coincident", 26, 2, 27, 1),
    Sketcher.Constraint("Coincident", 27, 2, 28, 1),
    Sketcher.Constraint("Coincident", 28, 2, 23, 1),
    Sketcher.Constraint("Coincident", 29, 2, 30, 1),
    Sketcher.Constraint("Coincident", 30, 2, 31, 1),
    Sketcher.Constraint("Coincident", 31, 2, 32, 1),
    Sketcher.Constraint("Coincident", 32, 2, 29, 1),
    Sketcher.Constraint("Vertical", 0),
    Sketcher.Constraint("Horizontal", 1),
    Sketcher.Constraint("Vertical", 2),
    Sketcher.Constraint("Vertical", 13),
    Sketcher.Constraint("Horizontal", 14),
    Sketcher.Constraint("Horizontal", 24),
    Sketcher.Constraint("Vertical", 26),
    Sketcher.Constraint("Horizontal", 27),
    Sketcher.Constraint("Vertical", 28),
    Sketcher.Constraint("Vertical", 29),
    Sketcher.Constraint("Horizontal", 30),
    Sketcher.Constraint("Vertical", 31),
    Sketcher.Constraint("Horizontal", 32),
    Sketcher.Constraint("Horizontal", 25, 2, 28, 2),
    Sketcher.Constraint("Vertical", 28, 2, 29, 2),
    Sketcher.Constraint("Vertical", 26, 2, 30, 2),
    Sketcher.Constraint("Equal", 32, 29),
    Sketcher.Constraint("Equal", 23, 25),
    Sketcher.Constraint("DistanceY", 29, 2, -1, 1, 5.0),
    Sketcher.Constraint("DistanceX", 24, 2, 25, 2, 0.316101),
    Sketcher.Constraint("DistanceY", 13, 2, 25, 2, 3.210398),
    Sketcher.Constraint("DistanceX", 1, 1, 1, 2, 3.319058),
    Sketcher.Constraint("DistanceX", 24, 1, 24, 2, 0.948302),
    Sketcher.Constraint("DistanceY", 0, 2, 0, 1, 1.422453),
    Sketcher.Constraint("DistanceY", 2, 2, 2, 1, 2.336182),
    Sketcher.Constraint("DistanceY", 26, 1, 26, 2, 2.795516),
    Sketcher.Constraint("DistanceX", -1, 1, 23, 2, 97.802081),
    Sketcher.Constraint("DistanceY", 23, 2, 13, 2, 3.477108),
])
pocket1 = body.newObject("PartDesign::Pocket", "Pocket")
pocket1.Profile = sketch3
pocket1.Length = 0.25

# Sketch on XY plane
sketch4 = body.newObject("Sketcher::SketchObject", "Sketch003")
sketch4.AttachmentSupport = (doc.getObject("XY_Plane"), [""])
sketch4.MapMode = "FlatFace"
sketch4.AttachmentOffset = App.Placement(App.Vector(0, 0, 3.5), App.Rotation())
sketch4.addGeometry([
    Part.LineSegment(App.Vector(-2, 2, 0), App.Vector(-2, -2, 0)),
    Part.LineSegment(App.Vector(-2, -2, 0), App.Vector(2, -2, 0)),
    Part.LineSegment(App.Vector(2, -2, 0), App.Vector(2, 2, 0)),
    Part.LineSegment(App.Vector(2, 2, 0), App.Vector(-2, 2, 0)),
], False)
sketch4.addConstraint([
    Sketcher.Constraint("Coincident", 0, 2, 1, 1),
    Sketcher.Constraint("Coincident", 1, 2, 2, 1),
    Sketcher.Constraint("Coincident", 2, 2, 3, 1),
    Sketcher.Constraint("Coincident", 3, 2, 0, 1),
    Sketcher.Constraint("Vertical", 0),
    Sketcher.Constraint("Horizontal", 1),
    Sketcher.Constraint("Vertical", 2),
    Sketcher.Constraint("Horizontal", 3),
    Sketcher.Constraint("Symmetric", 0, 2, 2, 2, -1, 1),
    Sketcher.Constraint("Equal", 3, 0),
    Sketcher.Constraint("DistanceX", 1, 1, 1, 2, 4.0),
])
pocket2 = body.newObject("PartDesign::Pocket", "Pocket001")
pocket2.Profile = sketch4
pocket2.Type = "ThroughAll"

doc.recompute()
